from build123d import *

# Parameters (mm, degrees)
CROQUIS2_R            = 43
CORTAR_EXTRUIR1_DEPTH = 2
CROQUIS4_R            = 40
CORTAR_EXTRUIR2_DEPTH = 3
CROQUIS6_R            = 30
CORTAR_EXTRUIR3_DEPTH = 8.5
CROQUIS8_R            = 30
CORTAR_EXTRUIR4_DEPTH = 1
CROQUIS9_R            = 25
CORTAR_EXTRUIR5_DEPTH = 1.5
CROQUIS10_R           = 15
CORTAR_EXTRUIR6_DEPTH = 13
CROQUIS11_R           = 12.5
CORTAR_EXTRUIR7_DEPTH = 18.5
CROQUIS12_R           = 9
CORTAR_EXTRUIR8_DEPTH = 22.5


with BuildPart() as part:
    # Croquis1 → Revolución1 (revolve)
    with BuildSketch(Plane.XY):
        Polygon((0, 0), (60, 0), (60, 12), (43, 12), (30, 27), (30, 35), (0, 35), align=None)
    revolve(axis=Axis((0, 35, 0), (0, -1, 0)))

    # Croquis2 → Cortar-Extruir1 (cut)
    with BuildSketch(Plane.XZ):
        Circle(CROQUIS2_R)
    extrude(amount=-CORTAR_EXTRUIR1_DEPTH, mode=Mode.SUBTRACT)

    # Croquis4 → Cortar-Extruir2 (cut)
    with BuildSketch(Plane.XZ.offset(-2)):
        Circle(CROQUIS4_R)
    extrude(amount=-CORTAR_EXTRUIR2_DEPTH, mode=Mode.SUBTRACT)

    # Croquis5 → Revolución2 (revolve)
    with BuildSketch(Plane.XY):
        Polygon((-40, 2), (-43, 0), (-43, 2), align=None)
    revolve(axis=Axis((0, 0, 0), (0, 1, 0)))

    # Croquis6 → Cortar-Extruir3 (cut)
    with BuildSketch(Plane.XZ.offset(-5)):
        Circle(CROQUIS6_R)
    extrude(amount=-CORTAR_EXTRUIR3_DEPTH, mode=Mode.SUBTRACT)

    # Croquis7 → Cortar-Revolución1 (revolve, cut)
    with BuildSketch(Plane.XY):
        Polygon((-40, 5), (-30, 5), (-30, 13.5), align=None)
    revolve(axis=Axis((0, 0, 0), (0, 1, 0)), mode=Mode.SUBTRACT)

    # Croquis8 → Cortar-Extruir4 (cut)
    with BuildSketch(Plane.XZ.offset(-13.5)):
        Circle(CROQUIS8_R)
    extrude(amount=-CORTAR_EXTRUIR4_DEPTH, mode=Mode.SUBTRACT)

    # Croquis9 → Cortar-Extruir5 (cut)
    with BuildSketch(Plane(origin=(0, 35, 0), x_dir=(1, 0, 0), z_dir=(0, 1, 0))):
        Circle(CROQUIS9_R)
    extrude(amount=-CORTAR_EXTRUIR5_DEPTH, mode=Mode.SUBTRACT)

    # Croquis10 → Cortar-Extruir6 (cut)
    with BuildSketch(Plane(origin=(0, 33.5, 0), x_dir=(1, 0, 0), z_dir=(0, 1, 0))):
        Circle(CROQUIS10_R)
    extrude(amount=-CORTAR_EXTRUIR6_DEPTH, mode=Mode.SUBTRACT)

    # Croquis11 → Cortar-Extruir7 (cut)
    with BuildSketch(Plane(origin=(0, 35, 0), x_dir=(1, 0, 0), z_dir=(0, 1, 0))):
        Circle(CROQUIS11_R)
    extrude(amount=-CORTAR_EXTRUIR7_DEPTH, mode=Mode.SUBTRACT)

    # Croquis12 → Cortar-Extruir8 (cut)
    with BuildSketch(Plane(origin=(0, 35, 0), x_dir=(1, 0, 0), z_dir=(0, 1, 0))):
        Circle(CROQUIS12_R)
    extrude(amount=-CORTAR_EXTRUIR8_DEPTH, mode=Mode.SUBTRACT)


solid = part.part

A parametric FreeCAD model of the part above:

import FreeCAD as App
import Part
import Sketcher


def add_polygon(sketch, points):
    """Adds a closed chain of lines whose ends are joined by coincident constraints."""
    first, n = sketch.GeometryCount, len(points)
    for a, b in zip(points, points[1:] + points[:1]):
        sketch.addGeometry(Part.LineSegment(App.Vector(*a, 0), App.Vector(*b, 0)), False)
    for i in range(n):
        sketch.addConstraint(Sketcher.Constraint("Coincident", first + i, 2, first + (i + 1) % n, 1))

doc = App.newDocument("Part")
body = doc.addObject("PartDesign::Body", "Body")

# Sketch on XY plane
sketch1 = body.newObject("Sketcher::SketchObject", "Sketch")
sketch1.AttachmentSupport = (doc.getObject("XY_Plane"), [""])
sketch1.MapMode = "FlatFace"
add_polygon(sketch1, [(0, 0), (60, 0), (60, 12), (43, 12), (30, 27), (30, 35), (0, 35)])  # lines 0-6
sketch1.addConstraint([
    Sketcher.Constraint("Horizontal", 0),
    Sketcher.Constraint("Vertical", 1),
    Sketcher.Constraint("Horizontal", 2),
    Sketcher.Constraint("Vertical", 4),
    Sketcher.Constraint("Horizontal", 5),
    Sketcher.Constraint("Vertical", 6),
    Sketcher.Constraint("Coincident", 6, 2, -1, 1),
    Sketcher.Constraint("DistanceX", 0, 1, 0, 2, 60.0),
    Sketcher.Constraint("DistanceX", 2, 2, 2, 1, 17.0),
    Sketcher.Constraint("DistanceX", 5, 2, 5, 1, 30.0),
    Sketcher.Constraint("DistanceY", 1, 1, 1, 2, 12.0),
    Sketcher.Constraint("DistanceY", 4, 1, 4, 2, 8.0),
    Sketcher.Constraint("DistanceY", 6, 2, 6, 1, 35.0),
])
revolution = body.newObject("PartDesign::Revolution", "Revolution")
revolution.Profile = sketch1
revolution.ReferenceAxis = (sketch1, ["V_Axis"])
revolution.Angle = 360

# Sketch on XZ plane
sketch2 = body.newObject("Sketcher::SketchObject", "Sketch001")
sketch2.AttachmentSupport = (doc.getObject("XZ_Plane"), [""])
sketch2.MapMode = "FlatFace"
sketch2.addGeometry(Part.Circle(App.Vector(0, 0, 0), App.Vector(0, 0, 1), 43), False)
sketch2.addConstraint([
    Sketcher.Constraint("Coincident", 0, 3, -1, 1),
    Sketcher.Constraint("Diameter", 0, 86.0),
])
pocket1 = body.newObject("PartDesign::Pocket", "Pocket")
pocket1.Profile = sketch2
pocket1.Length = 2

# Sketch on XZ plane
sketch3 = body.newObject("Sketcher::SketchObject", "Sketch002")
sketch3.AttachmentSupport = (doc.getObject("XZ_Plane"), [""])
sketch3.MapMode = "FlatFace"
sketch3.AttachmentOffset = App.Placement(App.Vector(0, 0, -2), App.Rotation())
sketch3.addGeometry(Part.Circle(App.Vector(0, 0, 0), App.Vector(0, 0, 1), 40), False)
sketch3.addConstraint([
    Sketcher.Constraint("Coincident", 0, 3, -1, 1),
    Sketcher.Constraint("Diameter", 0, 80.0),
])
pocket2 = body.newObject("PartDesign::Pocket", "Pocket001")
pocket2.Profile = sketch3
pocket2.Length = 3

# Sketch on XY plane
sketch4 = body.newObject("Sketcher::SketchObject", "Sketch003")
sketch4.AttachmentSupport = (doc.getObject("XY_Plane"), [""])
sketch4.MapMode = "FlatFace"
add_polygon(sketch4, [(-43, 0), (-40, 2), (-43, 2)])  # lines 0-2
sketch4.addConstraint([
    Sketcher.Constraint("Horizontal", 1),
    Sketcher.Constraint("Vertical", 2),
    Sketcher.Constraint("PointOnObject", 2, 2, -1),
    Sketcher.Constraint("DistanceX", 1, 2, 1, 1, 3.0),
    Sketcher.Constraint("DistanceY", 2, 2, 2, 1, 2.0),
    Sketcher.Constraint("DistanceX", 0, 2, -1, 1, 40.0),
])
revolution2 = body.newObject("PartDesign::Revolution", "Revolution001")
revolution2.Profile = sketch4
revolution2.ReferenceAxis = (sketch4, ["V_Axis"])
revolution2.Angle = 360

# Sketch on XZ plane
sketch5 = body.newObject("Sketcher::SketchObject", "Sketch004")
sketch5.AttachmentSupport = (doc.getObject("XZ_Plane"), [""])
sketch5.MapMode = "FlatFace"
sketch5.AttachmentOffset = App.Placement(App.Vector(0, 0, -5), App.Rotation())
sketch5.addGeometry(Part.Circle(App.Vector(0, 0, 0), App.Vector(0, 0, 1), 30), False)
sketch5.addConstraint([
    Sketcher.Constraint("Coincident", 0, 3, -1, 1),
    Sketcher.Constraint("Diameter", 0, 60.0),
])
pocket3 = body.newObject("PartDesign::Pocket", "Pocket002")
pocket3.Profile = sketch5
pocket3.Length = 8.5

# Sketch on XY plane
sketch6 = body.newObject("Sketcher::SketchObject", "Sketch005")
sketch6.AttachmentSupport = (doc.getObject("XY_Plane"), [""])
sketch6.MapMode = "FlatFace"
add_polygon(sketch6, [(-40, 5), (-30, 5), (-30, 14)])  # lines 0-2
sketch6.addConstraint([
    Sketcher.Constraint("Horizontal", 0),
    Sketcher.Constraint("Vertical", 1),
    Sketcher.Constraint("DistanceX", 0, 1, 0, 2, 10.0),
    Sketcher.Constraint("DistanceY", 1, 1, 1, 2, 8.5),
    Sketcher.Constraint("DistanceX", 0, 2, -1, 1, 30.0),
    Sketcher.Constraint("DistanceY", -1, 1, 0, 2, 5.0),
])
groove = body.newObject("PartDesign::Groove", "Groove")
groove.Profile = sketch6
groove.ReferenceAxis = (sketch6, ["V_Axis"])
groove.Angle = 360

# Sketch on XZ plane
sketch7 = body.newObject("Sketcher::SketchObject", "Sketch006")
sketch7.AttachmentSupport = (doc.getObject("XZ_Plane"), [""])
sketch7.MapMode = "FlatFace"
sketch7.AttachmentOffset = App.Placement(App.Vector(0, 0, -13.5), App.Rotation())
sketch7.addGeometry(Part.Circle(App.Vector(0, 0, 0), App.Vector(0, 0, 1), 30), False)
sketch7.addConstraint([
    Sketcher.Constraint("Coincident", 0, 3, -1, 1),
    Sketcher.Constraint("Diameter", 0, 60.0),
])
pocket4 = body.newObject("PartDesign::Pocket", "Pocket003")
pocket4.Profile = sketch7
pocket4.Length = 1

# Sketch on XZ plane
sketch8 = body.newObject("Sketcher::SketchObject", "Sketch007")
sketch8.AttachmentSupport = (doc.getObject("XZ_Plane"), [""])
sketch8.MapMode = "FlatFace"
sketch8.AttachmentOffset = App.Placement(App.Vector(0, 0, -35), App.Rotation())
sketch8.addGeometry(Part.Circle(App.Vector(0, 0, 0), App.Vector(0, 0, 1), 25), False)
sketch8.addConstraint([
    Sketcher.Constraint("Coincident", 0, 3, -1, 1),
    Sketcher.Constraint("Diameter", 0, 50.0),
])
pocket5 = body.newObject("PartDesign::Pocket", "Pocket004")
pocket5.Profile = sketch8
pocket5.Length = 1.5
pocket5.Reversed = True

# Sketch on XZ plane
sketch9 = body.newObject("Sketcher::SketchObject", "Sketch008")
sketch9.AttachmentSupport = (doc.getObject("XZ_Plane"), [""])
sketch9.MapMode = "FlatFace"
sketch9.AttachmentOffset = App.Placement(App.Vector(0, 0, -33.5), App.Rotation())
sketch9.addGeometry(Part.Circle(App.Vector(0, 0, 0), App.Vector(0, 0, 1), 15), False)
sketch9.addConstraint([
    Sketcher.Constraint("Coincident", 0, 3, -1, 1),
    Sketcher.Constraint("Diameter", 0, 30.0),
])
pocket6 = body.newObject("PartDesign::Pocket", "Pocket005")
pocket6.Profile = sketch9
pocket6.Length = 13
pocket6.Reversed = True

# Sketch on XZ plane
sketch10 = body.newObject("Sketcher::SketchObject", "Sketch009")
sketch10.AttachmentSupport = (doc.getObject("XZ_Plane"), [""])
sketch10.MapMode = "FlatFace"
sketch10.AttachmentOffset = App.Placement(App.Vector(0, 0, -35), App.Rotation())
sketch10.addGeometry(Part.Circle(App.Vector(0, 0, 0), App.Vector(0, 0, 1), 12), False)
sketch10.addConstraint([
    Sketcher.Constraint("Coincident", 0, 3, -1, 1),
    Sketcher.Constraint("Diameter", 0, 25.0),
])
pocket7 = body.newObject("PartDesign::Pocket", "Pocket006")
pocket7.Profile = sketch10
pocket7.Length = 18.5
pocket7.Reversed = True

# Sketch on XZ plane
sketch11 = body.newObject("Sketcher::SketchObject", "Sketch010")
sketch11.AttachmentSupport = (doc.getObject("XZ_Plane"), [""])
sketch11.MapMode = "FlatFace"
sketch11.AttachmentOffset = App.Placement(App.Vector(0, 0, -35), App.Rotation())
sketch11.addGeometry(Part.Circle(App.Vector(0, 0, 0), App.Vector(0, 0, 1), 9), False)
sketch11.addConstraint([
    Sketcher.Constraint("Coincident", 0, 3, -1, 1),
    Sketcher.Constraint("Diameter", 0, 18.0),
])
pocket8 = body.newObject("PartDesign::Pocket", "Pocket007")
pocket8.Profile = sketch11
pocket8.Length = 22.5
pocket8.Reversed = True

doc.recompute()
